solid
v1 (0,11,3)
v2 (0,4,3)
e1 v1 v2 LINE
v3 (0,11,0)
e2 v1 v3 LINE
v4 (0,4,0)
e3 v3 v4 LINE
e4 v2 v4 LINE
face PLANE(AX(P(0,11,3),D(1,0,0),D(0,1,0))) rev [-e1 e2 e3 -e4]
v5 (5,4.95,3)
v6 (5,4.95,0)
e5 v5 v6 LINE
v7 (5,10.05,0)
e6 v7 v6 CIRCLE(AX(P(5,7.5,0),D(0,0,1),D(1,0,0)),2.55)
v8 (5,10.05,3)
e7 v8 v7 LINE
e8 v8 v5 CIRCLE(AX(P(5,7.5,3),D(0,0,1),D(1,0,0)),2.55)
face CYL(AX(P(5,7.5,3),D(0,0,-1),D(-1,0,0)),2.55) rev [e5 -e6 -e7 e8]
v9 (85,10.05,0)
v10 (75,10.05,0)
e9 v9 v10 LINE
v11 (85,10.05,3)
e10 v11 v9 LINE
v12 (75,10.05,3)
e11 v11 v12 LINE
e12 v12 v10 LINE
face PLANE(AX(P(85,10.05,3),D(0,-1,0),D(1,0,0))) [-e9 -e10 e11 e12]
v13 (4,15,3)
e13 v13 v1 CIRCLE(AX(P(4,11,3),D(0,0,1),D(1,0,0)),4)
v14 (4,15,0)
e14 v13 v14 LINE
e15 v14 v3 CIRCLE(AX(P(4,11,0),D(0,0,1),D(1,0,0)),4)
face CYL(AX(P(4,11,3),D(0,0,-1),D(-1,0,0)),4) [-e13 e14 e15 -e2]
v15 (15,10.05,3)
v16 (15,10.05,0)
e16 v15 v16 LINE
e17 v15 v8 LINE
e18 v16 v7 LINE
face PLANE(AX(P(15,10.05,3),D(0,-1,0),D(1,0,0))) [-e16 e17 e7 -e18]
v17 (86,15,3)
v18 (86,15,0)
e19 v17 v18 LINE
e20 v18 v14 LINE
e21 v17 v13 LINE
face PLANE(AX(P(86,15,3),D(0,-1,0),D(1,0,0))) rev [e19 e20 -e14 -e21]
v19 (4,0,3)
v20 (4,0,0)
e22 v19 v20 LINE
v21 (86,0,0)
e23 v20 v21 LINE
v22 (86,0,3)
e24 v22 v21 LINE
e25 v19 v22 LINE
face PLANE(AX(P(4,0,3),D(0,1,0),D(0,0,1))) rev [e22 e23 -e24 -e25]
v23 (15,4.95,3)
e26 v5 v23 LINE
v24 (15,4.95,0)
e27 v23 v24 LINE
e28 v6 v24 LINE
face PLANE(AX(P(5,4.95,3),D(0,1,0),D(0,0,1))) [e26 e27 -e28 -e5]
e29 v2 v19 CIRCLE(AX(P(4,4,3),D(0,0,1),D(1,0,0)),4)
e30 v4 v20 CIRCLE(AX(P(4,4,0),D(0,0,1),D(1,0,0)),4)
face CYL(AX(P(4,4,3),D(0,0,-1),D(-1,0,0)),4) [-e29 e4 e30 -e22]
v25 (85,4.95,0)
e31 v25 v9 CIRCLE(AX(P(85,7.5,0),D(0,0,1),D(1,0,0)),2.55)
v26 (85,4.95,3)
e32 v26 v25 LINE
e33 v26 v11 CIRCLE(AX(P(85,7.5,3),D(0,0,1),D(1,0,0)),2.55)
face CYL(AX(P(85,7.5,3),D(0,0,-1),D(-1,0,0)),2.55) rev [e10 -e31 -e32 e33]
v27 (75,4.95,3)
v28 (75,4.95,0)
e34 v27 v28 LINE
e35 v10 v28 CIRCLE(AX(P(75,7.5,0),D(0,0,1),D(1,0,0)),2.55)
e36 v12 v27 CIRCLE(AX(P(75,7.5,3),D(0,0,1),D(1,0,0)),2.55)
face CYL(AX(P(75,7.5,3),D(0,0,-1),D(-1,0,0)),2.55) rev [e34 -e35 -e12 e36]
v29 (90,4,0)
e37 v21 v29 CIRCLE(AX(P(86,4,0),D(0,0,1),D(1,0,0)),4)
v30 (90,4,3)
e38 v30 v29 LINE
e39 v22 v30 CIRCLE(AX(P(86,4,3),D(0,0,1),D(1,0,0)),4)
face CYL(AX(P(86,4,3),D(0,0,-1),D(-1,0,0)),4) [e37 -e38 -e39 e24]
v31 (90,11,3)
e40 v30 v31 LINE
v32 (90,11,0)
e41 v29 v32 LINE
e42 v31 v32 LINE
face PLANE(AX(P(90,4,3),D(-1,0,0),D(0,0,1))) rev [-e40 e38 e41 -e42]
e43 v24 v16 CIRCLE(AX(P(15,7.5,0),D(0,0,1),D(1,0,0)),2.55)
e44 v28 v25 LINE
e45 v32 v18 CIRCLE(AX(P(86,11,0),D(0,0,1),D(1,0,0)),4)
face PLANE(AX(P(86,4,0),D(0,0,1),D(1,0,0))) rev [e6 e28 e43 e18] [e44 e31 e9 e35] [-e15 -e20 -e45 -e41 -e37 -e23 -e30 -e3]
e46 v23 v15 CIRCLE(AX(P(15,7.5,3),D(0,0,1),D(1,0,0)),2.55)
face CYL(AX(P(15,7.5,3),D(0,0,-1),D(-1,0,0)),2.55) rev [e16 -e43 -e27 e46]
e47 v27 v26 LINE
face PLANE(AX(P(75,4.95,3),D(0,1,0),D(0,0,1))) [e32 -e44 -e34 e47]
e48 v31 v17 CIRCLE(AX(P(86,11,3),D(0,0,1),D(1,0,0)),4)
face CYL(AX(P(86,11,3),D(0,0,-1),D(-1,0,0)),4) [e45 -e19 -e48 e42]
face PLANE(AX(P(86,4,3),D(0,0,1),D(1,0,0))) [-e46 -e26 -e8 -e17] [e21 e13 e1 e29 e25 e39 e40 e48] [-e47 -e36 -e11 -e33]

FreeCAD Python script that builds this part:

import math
import FreeCAD as App
import Part
import Sketcher
from FreeCAD import Vector
Q = App.Units.Quantity

doc = App.newDocument("Part")
body = doc.addObject("PartDesign::Body", "Body")

# Sketch on XY plane
sketch1 = body.newObject("Sketcher::SketchObject", "Sketch")
sketch1.AttachmentSupport = (doc.getObject("XY_Plane"), [""])
sketch1.MapMode = "FlatFace"
sketch1.addGeometry([
    Part.LineSegment(Vector(4, 0, 0), Vector(86, 0, 0)),  # 0
    Part.ArcOfCircle(Part.Circle(Vector(86, 4, 0), Vector(0, 0, 1), 4), math.radians(-90), math.radians(0)),  # 1
    Part.LineSegment(Vector(90, 4, 0), Vector(90, 11, 0)),  # 2
    Part.ArcOfCircle(Part.Circle(Vector(86, 11, 0), Vector(0, 0, 1), 4), math.radians(0), math.radians(90)),  # 3
    Part.LineSegment(Vector(86, 15, 0), Vector(4, 15, 0)),  # 4
    Part.ArcOfCircle(Part.Circle(Vector(4, 11, 0), Vector(0, 0, 1), 4), math.radians(90), math.radians(180)),  # 5
    Part.LineSegment(Vector(0, 11, 0), Vector(0, 4, 0)),  # 6
    Part.ArcOfCircle(Part.Circle(Vector(4, 4, 0), Vector(0, 0, 1), 4), math.radians(180), math.radians(270)),  # 7
    Part.LineSegment(Vector(15, 5, 0), Vector(5, 5, 0)),  # 8
    Part.ArcOfCircle(Part.Circle(Vector(5, 7.5, 0), Vector(0, 0, 1), 2.5), math.radians(90), math.radians(270)),  # 9
    Part.LineSegment(Vector(5, 10.1, 0), Vector(15, 10.1, 0)),  # 10
    Part.ArcOfCircle(Part.Circle(Vector(15, 7.5, 0), Vector(0, 0, 1), 2.5), math.radians(-90), math.radians(90)),  # 11
    Part.LineSegment(Vector(85, 5, 0), Vector(75, 5, 0)),  # 12
    Part.ArcOfCircle(Part.Circle(Vector(75, 7.5, 0), Vector(0, 0, 1), 2.5), math.radians(90), math.radians(270)),  # 13
    Part.LineSegment(Vector(75, 10.1, 0), Vector(85, 10.1, 0)),  # 14
    Part.ArcOfCircle(Part.Circle(Vector(85, 7.5, 0), Vector(0, 0, 1), 2.5), math.radians(-90), math.radians(90)),  # 15
], False)
sketch1.addConstraint([
    Sketcher.Constraint("Tangent", 0, 2, 1, 1),
    Sketcher.Constraint("Tangent", 1, 2, 2, 1),
    Sketcher.Constraint("Tangent", 2, 2, 3, 1),
    Sketcher.Constraint("Tangent", 3, 2, 4, 1),
    Sketcher.Constraint("Tangent", 4, 2, 5, 1),
    Sketcher.Constraint("Tangent", 5, 2, 6, 1),
    Sketcher.Constraint("Tangent", 6, 2, 7, 1),
    Sketcher.Constraint("Tangent", 7, 2, 0, 1),
    Sketcher.Constraint("Tangent", 8, 2, 9, 2),
    Sketcher.Constraint("Tangent", 9, 1, 10, 1),
    Sketcher.Constraint("Tangent", 10, 2, 11, 2),
    Sketcher.Constraint("Tangent", 11, 1, 8, 1),
    Sketcher.Constraint("Tangent", 12, 2, 13, 2),
    Sketcher.Constraint("Tangent", 13, 1, 14, 1),
    Sketcher.Constraint("Tangent", 14, 2, 15, 2),
    Sketcher.Constraint("Tangent", 15, 1, 12, 1),
    Sketcher.Constraint("Horizontal", 0),
    Sketcher.Constraint("Vertical", 2),
    Sketcher.Constraint("Horizontal", 4),
    Sketcher.Constraint("Vertical", 6),
    Sketcher.Constraint("Horizontal", 8),
    Sketcher.Constraint("Horizontal", 10),
    Sketcher.Constraint("Horizontal", 12),
    Sketcher.Constraint("Horizontal", 14),
    Sketcher.Constraint("Equal", 1, 3),
    Sketcher.Constraint("Equal", 3, 5),
    Sketcher.Constraint("Equal", 5, 7),
    Sketcher.Constraint("Equal", 11, 13),
    Sketcher.Constraint("PointOnObject", 0, 2, -1),
    Sketcher.Constraint("PointOnObject", 5, 2, -2),
    Sketcher.Constraint("Horizontal", 11, 3, 13, 3),
    Sketcher.Constraint("Equal", 10, 12),
    Sketcher.Constraint("Radius", 1, Q("4 mm")),
    Sketcher.Constraint("DistanceX", 0, 1, 0, 2, Q("82 mm")),
    Sketcher.Constraint("DistanceX", 8, 2, 8, 1, Q("10 mm")),
    Sketcher.Constraint("DistanceY", 2, 1, 2, 2, Q("7 mm")),
    Sketcher.Constraint("Radius", 9, Q("2.55 mm")),
    Sketcher.Constraint("DistanceX", -1, 1, 9, 3, Q("5 mm")),
    Sketcher.Constraint("DistanceX", -1, 1, 13, 3, Q("75 mm")),
    Sketcher.Constraint("DistanceY", -1, 1, 9, 3, Q("7.5 mm")),
])
pad1 = body.newObject("PartDesign::Pad", "Pad")
pad1.Profile = sketch1
pad1.Length = 3

doc.recompute()
